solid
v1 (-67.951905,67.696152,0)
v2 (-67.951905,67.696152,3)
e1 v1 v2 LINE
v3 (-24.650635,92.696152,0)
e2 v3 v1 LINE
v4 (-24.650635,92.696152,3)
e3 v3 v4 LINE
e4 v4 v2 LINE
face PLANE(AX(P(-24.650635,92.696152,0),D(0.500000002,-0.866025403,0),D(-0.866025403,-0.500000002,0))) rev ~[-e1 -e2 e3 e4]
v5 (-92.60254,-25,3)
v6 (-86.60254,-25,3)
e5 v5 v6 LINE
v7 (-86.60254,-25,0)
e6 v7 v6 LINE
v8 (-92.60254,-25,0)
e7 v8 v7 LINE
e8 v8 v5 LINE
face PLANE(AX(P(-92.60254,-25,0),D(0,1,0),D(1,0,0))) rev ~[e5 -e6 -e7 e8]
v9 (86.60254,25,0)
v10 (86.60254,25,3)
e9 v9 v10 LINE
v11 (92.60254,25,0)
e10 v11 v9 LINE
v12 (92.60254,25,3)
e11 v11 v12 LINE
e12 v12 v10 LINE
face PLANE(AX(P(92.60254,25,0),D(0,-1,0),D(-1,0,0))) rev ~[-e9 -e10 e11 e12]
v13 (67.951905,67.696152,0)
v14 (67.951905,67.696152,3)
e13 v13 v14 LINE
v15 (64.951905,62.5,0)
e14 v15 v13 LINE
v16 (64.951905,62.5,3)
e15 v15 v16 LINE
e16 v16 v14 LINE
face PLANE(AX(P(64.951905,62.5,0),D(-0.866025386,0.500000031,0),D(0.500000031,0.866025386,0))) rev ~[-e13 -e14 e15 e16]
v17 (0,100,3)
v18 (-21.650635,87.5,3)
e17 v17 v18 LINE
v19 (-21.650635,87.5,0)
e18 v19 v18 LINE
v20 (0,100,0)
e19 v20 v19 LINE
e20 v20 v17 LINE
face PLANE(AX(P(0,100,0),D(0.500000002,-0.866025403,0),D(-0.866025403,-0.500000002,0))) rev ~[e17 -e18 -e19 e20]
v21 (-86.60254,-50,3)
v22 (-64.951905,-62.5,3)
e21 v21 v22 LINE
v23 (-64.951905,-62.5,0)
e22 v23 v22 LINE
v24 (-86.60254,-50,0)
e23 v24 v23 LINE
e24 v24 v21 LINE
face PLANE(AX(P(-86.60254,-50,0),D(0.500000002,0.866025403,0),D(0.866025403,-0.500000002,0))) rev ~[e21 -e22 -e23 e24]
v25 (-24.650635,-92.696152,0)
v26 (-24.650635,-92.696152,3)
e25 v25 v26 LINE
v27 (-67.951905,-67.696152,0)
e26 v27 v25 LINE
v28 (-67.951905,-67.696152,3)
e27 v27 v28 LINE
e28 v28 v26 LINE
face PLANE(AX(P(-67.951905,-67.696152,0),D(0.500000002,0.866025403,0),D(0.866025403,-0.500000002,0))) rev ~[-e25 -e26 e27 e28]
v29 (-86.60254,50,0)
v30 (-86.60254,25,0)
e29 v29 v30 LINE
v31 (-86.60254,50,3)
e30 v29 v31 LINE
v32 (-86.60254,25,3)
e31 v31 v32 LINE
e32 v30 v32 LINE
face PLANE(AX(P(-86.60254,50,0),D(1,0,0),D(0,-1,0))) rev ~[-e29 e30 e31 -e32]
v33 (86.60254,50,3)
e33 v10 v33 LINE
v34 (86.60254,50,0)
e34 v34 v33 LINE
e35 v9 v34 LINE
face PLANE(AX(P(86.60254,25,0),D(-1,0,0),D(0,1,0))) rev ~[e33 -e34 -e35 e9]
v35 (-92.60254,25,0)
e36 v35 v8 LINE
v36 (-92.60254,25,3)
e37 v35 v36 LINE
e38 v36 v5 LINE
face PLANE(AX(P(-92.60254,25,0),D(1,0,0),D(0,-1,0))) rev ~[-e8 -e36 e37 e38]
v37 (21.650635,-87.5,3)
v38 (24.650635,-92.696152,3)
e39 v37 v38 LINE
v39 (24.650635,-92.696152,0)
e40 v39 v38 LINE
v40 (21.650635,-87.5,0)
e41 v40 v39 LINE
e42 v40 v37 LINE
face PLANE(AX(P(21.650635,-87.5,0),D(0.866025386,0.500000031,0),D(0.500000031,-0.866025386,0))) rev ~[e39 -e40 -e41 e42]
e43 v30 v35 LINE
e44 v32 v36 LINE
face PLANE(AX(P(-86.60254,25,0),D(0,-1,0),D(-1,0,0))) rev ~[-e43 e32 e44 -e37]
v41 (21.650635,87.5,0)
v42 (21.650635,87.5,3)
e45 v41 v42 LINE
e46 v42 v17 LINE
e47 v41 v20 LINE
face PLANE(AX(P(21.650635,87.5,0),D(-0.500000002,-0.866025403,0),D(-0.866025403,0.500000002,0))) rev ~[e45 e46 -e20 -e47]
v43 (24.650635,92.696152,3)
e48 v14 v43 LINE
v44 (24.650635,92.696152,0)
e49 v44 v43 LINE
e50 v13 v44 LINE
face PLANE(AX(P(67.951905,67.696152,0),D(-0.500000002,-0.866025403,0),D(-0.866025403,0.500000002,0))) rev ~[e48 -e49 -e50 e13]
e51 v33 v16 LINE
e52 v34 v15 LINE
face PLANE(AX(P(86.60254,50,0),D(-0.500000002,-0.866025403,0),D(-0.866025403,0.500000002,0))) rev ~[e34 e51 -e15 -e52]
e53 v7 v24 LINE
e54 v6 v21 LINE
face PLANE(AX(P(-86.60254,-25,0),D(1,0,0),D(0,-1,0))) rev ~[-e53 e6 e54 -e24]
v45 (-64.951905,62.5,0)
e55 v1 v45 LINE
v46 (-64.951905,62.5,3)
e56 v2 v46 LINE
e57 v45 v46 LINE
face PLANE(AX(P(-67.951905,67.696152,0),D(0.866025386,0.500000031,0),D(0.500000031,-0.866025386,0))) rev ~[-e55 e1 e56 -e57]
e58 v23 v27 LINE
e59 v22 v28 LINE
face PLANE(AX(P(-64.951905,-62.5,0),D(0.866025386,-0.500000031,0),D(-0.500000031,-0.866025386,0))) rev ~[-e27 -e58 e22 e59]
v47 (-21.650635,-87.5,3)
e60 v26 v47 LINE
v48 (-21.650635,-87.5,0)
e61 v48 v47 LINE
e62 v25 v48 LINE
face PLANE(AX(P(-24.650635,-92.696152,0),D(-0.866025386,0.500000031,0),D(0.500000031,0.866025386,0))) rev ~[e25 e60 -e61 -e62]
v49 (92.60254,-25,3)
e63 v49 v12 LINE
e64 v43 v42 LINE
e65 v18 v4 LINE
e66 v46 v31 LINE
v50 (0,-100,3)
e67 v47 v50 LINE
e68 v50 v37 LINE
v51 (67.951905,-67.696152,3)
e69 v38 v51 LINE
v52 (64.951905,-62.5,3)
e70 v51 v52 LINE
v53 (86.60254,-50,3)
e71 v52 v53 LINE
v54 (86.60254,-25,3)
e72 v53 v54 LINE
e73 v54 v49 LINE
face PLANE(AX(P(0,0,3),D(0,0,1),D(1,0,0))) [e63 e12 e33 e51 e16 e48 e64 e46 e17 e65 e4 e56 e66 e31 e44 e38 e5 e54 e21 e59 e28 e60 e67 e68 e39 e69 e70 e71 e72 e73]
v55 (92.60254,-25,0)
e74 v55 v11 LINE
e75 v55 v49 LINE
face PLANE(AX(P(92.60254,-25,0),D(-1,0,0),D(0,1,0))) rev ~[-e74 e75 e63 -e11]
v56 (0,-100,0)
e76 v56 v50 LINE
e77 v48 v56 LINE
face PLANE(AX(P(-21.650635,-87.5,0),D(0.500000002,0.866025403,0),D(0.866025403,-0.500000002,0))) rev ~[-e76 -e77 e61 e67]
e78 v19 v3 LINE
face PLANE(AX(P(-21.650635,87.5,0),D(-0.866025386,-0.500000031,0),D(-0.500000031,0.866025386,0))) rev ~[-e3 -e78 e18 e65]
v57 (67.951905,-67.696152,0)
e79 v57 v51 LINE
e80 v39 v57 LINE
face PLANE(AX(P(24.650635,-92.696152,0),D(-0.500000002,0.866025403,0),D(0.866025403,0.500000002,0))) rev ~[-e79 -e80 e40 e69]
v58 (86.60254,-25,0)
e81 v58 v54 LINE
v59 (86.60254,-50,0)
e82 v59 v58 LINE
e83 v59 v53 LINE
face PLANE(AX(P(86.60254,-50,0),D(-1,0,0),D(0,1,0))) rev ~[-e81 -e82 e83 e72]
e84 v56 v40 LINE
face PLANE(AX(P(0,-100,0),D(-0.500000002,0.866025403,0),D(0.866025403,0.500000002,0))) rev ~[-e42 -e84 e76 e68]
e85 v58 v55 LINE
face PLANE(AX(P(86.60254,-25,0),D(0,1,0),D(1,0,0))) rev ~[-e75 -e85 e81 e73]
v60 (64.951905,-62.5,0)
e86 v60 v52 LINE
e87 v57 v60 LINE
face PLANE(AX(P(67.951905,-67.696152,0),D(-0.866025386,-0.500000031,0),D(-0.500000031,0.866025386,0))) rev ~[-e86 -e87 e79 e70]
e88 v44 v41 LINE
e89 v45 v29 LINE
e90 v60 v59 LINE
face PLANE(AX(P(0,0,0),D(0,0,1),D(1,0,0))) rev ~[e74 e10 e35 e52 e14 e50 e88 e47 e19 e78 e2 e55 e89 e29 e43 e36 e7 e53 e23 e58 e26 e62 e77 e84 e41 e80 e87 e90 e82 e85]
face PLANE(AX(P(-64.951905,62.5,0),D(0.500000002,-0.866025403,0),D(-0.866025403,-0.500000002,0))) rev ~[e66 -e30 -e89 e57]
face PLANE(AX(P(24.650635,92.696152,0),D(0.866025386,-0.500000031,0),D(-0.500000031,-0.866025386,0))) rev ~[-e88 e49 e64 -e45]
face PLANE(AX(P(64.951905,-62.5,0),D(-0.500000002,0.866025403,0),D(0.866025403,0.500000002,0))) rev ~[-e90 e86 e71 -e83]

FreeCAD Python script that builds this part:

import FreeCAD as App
import Part
import Sketcher
from FreeCAD import Vector
Q = App.Units.Quantity


def add_polygon(sketch, points):
    """Adds a closed chain of lines whose ends are joined by coincident constraints."""
    first, n = sketch.GeometryCount, len(points)
    for a, b in zip(points, points[1:] + points[:1]):
        sketch.addGeometry(Part.LineSegment(App.Vector(*a, 0), App.Vector(*b, 0)), False)
    for i in range(n):
        sketch.addConstraint(Sketcher.Constraint("Coincident", first + i, 2, first + (i + 1) % n, 1))

doc = App.newDocument("Part")
body = doc.addObject("PartDesign::Body", "Body")

sketch1 = body.newObject("Sketcher::SketchObject", "Sketch")
sketch1.AttachmentSupport = (doc.getObject("XY_Plane"), [""])
sketch1.MapMode = "FlatFace"
add_polygon(sketch1, [(-21.650635, -87.5), (0, -100), (21.650635, -87.5), (24.650635, -92.696152), (67.951905, -67.696152), (64.951905, -62.5), (86.60254, -50), (86.60254, -25), (92.60254, -25), (92.60254, 25), (86.60254, 25), (86.60254, 50), (64.951905, 62.5), (67.951905, 67.696152), (24.650635, 92.696152), (21.650635, 87.5), (0, 100), (-21.650635, 87.5), (-24.650635, 92.696152), (-67.951905, 67.696152), (-64.951905, 62.5), (-86.60254, 50), (-86.60254, 25), (-92.60254, 25), (-92.60254, -25), (-86.60254, -25), (-86.60254, -50), (-64.951905, -62.5), (-67.951905, -67.696152), (-24.650635, -92.696152)])
sketch1.addConstraint([
    Sketcher.Constraint("Vertical", 6),
    Sketcher.Constraint("Horizontal", 7),
    Sketcher.Constraint("Vertical", 8),
    Sketcher.Constraint("Horizontal", 9),
    Sketcher.Constraint("Vertical", 10),
    Sketcher.Constraint("Vertical", 21),
    Sketcher.Constraint("Horizontal", 22),
    Sketcher.Constraint("Vertical", 23),
    Sketcher.Constraint("Horizontal", 24),
    Sketcher.Constraint("Vertical", 25),
    Sketcher.Constraint("Symmetric", 0, 2, 15, 2, -1, 1),
    Sketcher.Constraint("Symmetric", 1, 2, 16, 2, -1, 1),
    Sketcher.Constraint("Symmetric", 2, 2, 17, 2, -1, 1),
    Sketcher.Constraint("Symmetric", 3, 2, 18, 2, -1, 1),
    Sketcher.Constraint("Symmetric", 4, 2, 19, 2, -1, 1),
    Sketcher.Constraint("Symmetric", 5, 2, 20, 2, -1, 1),
    Sketcher.Constraint("Symmetric", 7, 2, 22, 2, -1, 1),
    Sketcher.Constraint("Symmetric", 9, 2, 24, 2, -1, 1),
    Sketcher.Constraint("Symmetric", 11, 2, 26, 2, -1, 1),
    Sketcher.Constraint("Symmetric", 12, 2, 27, 2, -1, 1),
    Sketcher.Constraint("Symmetric", 13, 2, 28, 2, -1, 1),
    Sketcher.Constraint("Symmetric", 14, 2, 29, 2, -1, 1),
    Sketcher.Constraint("Symmetric", 14, 2, 16, 2, -2),
    Sketcher.Constraint("Symmetric", 13, 2, 17, 2, -2),
    Sketcher.Constraint("Symmetric", 12, 2, 18, 2, -2),
    Sketcher.Constraint("Symmetric", 11, 2, 19, 2, -2),
    Sketcher.Constraint("Symmetric", 10, 2, 20, 2, -2),
    Sketcher.Constraint("PointOnObject", 0, 2, -2),
    Sketcher.Constraint("Perpendicular", 1, 2),
    Sketcher.Constraint("Perpendicular", 2, 3),
    Sketcher.Constraint("Perpendicular", 3, 4),
    Sketcher.Constraint("Perpendicular", 4, 5),
    Sketcher.Constraint("Parallel", 15, 26),
    Sketcher.Constraint("Horizontal", 9, 2, 21, 2),
    Sketcher.Constraint("Equal", 2, 4),
    Sketcher.Constraint("Equal", 1, 5),
    Sketcher.Constraint("DistanceX", 7, 1, 7, 2, Q("6 mm")),
    Sketcher.Constraint("DistanceY", 6, 1, 6, 2, Q("25 mm")),
    Sketcher.Constraint("DistanceY", 8, 1, 8, 2, Q("50 mm")),
    Sketcher.Constraint("Angle", 0, Q("-30 deg")),
    Sketcher.Constraint("Distance", 0, Q("25 mm")),
    Sketcher.Constraint("Distance", 2, Q("6 mm")),
    Sketcher.Constraint("Distance", 3, Q("50 mm")),
])
pad1 = body.newObject("PartDesign::Pad", "Pad")
pad1.Profile = sketch1
pad1.Length = 3

doc.recompute()
